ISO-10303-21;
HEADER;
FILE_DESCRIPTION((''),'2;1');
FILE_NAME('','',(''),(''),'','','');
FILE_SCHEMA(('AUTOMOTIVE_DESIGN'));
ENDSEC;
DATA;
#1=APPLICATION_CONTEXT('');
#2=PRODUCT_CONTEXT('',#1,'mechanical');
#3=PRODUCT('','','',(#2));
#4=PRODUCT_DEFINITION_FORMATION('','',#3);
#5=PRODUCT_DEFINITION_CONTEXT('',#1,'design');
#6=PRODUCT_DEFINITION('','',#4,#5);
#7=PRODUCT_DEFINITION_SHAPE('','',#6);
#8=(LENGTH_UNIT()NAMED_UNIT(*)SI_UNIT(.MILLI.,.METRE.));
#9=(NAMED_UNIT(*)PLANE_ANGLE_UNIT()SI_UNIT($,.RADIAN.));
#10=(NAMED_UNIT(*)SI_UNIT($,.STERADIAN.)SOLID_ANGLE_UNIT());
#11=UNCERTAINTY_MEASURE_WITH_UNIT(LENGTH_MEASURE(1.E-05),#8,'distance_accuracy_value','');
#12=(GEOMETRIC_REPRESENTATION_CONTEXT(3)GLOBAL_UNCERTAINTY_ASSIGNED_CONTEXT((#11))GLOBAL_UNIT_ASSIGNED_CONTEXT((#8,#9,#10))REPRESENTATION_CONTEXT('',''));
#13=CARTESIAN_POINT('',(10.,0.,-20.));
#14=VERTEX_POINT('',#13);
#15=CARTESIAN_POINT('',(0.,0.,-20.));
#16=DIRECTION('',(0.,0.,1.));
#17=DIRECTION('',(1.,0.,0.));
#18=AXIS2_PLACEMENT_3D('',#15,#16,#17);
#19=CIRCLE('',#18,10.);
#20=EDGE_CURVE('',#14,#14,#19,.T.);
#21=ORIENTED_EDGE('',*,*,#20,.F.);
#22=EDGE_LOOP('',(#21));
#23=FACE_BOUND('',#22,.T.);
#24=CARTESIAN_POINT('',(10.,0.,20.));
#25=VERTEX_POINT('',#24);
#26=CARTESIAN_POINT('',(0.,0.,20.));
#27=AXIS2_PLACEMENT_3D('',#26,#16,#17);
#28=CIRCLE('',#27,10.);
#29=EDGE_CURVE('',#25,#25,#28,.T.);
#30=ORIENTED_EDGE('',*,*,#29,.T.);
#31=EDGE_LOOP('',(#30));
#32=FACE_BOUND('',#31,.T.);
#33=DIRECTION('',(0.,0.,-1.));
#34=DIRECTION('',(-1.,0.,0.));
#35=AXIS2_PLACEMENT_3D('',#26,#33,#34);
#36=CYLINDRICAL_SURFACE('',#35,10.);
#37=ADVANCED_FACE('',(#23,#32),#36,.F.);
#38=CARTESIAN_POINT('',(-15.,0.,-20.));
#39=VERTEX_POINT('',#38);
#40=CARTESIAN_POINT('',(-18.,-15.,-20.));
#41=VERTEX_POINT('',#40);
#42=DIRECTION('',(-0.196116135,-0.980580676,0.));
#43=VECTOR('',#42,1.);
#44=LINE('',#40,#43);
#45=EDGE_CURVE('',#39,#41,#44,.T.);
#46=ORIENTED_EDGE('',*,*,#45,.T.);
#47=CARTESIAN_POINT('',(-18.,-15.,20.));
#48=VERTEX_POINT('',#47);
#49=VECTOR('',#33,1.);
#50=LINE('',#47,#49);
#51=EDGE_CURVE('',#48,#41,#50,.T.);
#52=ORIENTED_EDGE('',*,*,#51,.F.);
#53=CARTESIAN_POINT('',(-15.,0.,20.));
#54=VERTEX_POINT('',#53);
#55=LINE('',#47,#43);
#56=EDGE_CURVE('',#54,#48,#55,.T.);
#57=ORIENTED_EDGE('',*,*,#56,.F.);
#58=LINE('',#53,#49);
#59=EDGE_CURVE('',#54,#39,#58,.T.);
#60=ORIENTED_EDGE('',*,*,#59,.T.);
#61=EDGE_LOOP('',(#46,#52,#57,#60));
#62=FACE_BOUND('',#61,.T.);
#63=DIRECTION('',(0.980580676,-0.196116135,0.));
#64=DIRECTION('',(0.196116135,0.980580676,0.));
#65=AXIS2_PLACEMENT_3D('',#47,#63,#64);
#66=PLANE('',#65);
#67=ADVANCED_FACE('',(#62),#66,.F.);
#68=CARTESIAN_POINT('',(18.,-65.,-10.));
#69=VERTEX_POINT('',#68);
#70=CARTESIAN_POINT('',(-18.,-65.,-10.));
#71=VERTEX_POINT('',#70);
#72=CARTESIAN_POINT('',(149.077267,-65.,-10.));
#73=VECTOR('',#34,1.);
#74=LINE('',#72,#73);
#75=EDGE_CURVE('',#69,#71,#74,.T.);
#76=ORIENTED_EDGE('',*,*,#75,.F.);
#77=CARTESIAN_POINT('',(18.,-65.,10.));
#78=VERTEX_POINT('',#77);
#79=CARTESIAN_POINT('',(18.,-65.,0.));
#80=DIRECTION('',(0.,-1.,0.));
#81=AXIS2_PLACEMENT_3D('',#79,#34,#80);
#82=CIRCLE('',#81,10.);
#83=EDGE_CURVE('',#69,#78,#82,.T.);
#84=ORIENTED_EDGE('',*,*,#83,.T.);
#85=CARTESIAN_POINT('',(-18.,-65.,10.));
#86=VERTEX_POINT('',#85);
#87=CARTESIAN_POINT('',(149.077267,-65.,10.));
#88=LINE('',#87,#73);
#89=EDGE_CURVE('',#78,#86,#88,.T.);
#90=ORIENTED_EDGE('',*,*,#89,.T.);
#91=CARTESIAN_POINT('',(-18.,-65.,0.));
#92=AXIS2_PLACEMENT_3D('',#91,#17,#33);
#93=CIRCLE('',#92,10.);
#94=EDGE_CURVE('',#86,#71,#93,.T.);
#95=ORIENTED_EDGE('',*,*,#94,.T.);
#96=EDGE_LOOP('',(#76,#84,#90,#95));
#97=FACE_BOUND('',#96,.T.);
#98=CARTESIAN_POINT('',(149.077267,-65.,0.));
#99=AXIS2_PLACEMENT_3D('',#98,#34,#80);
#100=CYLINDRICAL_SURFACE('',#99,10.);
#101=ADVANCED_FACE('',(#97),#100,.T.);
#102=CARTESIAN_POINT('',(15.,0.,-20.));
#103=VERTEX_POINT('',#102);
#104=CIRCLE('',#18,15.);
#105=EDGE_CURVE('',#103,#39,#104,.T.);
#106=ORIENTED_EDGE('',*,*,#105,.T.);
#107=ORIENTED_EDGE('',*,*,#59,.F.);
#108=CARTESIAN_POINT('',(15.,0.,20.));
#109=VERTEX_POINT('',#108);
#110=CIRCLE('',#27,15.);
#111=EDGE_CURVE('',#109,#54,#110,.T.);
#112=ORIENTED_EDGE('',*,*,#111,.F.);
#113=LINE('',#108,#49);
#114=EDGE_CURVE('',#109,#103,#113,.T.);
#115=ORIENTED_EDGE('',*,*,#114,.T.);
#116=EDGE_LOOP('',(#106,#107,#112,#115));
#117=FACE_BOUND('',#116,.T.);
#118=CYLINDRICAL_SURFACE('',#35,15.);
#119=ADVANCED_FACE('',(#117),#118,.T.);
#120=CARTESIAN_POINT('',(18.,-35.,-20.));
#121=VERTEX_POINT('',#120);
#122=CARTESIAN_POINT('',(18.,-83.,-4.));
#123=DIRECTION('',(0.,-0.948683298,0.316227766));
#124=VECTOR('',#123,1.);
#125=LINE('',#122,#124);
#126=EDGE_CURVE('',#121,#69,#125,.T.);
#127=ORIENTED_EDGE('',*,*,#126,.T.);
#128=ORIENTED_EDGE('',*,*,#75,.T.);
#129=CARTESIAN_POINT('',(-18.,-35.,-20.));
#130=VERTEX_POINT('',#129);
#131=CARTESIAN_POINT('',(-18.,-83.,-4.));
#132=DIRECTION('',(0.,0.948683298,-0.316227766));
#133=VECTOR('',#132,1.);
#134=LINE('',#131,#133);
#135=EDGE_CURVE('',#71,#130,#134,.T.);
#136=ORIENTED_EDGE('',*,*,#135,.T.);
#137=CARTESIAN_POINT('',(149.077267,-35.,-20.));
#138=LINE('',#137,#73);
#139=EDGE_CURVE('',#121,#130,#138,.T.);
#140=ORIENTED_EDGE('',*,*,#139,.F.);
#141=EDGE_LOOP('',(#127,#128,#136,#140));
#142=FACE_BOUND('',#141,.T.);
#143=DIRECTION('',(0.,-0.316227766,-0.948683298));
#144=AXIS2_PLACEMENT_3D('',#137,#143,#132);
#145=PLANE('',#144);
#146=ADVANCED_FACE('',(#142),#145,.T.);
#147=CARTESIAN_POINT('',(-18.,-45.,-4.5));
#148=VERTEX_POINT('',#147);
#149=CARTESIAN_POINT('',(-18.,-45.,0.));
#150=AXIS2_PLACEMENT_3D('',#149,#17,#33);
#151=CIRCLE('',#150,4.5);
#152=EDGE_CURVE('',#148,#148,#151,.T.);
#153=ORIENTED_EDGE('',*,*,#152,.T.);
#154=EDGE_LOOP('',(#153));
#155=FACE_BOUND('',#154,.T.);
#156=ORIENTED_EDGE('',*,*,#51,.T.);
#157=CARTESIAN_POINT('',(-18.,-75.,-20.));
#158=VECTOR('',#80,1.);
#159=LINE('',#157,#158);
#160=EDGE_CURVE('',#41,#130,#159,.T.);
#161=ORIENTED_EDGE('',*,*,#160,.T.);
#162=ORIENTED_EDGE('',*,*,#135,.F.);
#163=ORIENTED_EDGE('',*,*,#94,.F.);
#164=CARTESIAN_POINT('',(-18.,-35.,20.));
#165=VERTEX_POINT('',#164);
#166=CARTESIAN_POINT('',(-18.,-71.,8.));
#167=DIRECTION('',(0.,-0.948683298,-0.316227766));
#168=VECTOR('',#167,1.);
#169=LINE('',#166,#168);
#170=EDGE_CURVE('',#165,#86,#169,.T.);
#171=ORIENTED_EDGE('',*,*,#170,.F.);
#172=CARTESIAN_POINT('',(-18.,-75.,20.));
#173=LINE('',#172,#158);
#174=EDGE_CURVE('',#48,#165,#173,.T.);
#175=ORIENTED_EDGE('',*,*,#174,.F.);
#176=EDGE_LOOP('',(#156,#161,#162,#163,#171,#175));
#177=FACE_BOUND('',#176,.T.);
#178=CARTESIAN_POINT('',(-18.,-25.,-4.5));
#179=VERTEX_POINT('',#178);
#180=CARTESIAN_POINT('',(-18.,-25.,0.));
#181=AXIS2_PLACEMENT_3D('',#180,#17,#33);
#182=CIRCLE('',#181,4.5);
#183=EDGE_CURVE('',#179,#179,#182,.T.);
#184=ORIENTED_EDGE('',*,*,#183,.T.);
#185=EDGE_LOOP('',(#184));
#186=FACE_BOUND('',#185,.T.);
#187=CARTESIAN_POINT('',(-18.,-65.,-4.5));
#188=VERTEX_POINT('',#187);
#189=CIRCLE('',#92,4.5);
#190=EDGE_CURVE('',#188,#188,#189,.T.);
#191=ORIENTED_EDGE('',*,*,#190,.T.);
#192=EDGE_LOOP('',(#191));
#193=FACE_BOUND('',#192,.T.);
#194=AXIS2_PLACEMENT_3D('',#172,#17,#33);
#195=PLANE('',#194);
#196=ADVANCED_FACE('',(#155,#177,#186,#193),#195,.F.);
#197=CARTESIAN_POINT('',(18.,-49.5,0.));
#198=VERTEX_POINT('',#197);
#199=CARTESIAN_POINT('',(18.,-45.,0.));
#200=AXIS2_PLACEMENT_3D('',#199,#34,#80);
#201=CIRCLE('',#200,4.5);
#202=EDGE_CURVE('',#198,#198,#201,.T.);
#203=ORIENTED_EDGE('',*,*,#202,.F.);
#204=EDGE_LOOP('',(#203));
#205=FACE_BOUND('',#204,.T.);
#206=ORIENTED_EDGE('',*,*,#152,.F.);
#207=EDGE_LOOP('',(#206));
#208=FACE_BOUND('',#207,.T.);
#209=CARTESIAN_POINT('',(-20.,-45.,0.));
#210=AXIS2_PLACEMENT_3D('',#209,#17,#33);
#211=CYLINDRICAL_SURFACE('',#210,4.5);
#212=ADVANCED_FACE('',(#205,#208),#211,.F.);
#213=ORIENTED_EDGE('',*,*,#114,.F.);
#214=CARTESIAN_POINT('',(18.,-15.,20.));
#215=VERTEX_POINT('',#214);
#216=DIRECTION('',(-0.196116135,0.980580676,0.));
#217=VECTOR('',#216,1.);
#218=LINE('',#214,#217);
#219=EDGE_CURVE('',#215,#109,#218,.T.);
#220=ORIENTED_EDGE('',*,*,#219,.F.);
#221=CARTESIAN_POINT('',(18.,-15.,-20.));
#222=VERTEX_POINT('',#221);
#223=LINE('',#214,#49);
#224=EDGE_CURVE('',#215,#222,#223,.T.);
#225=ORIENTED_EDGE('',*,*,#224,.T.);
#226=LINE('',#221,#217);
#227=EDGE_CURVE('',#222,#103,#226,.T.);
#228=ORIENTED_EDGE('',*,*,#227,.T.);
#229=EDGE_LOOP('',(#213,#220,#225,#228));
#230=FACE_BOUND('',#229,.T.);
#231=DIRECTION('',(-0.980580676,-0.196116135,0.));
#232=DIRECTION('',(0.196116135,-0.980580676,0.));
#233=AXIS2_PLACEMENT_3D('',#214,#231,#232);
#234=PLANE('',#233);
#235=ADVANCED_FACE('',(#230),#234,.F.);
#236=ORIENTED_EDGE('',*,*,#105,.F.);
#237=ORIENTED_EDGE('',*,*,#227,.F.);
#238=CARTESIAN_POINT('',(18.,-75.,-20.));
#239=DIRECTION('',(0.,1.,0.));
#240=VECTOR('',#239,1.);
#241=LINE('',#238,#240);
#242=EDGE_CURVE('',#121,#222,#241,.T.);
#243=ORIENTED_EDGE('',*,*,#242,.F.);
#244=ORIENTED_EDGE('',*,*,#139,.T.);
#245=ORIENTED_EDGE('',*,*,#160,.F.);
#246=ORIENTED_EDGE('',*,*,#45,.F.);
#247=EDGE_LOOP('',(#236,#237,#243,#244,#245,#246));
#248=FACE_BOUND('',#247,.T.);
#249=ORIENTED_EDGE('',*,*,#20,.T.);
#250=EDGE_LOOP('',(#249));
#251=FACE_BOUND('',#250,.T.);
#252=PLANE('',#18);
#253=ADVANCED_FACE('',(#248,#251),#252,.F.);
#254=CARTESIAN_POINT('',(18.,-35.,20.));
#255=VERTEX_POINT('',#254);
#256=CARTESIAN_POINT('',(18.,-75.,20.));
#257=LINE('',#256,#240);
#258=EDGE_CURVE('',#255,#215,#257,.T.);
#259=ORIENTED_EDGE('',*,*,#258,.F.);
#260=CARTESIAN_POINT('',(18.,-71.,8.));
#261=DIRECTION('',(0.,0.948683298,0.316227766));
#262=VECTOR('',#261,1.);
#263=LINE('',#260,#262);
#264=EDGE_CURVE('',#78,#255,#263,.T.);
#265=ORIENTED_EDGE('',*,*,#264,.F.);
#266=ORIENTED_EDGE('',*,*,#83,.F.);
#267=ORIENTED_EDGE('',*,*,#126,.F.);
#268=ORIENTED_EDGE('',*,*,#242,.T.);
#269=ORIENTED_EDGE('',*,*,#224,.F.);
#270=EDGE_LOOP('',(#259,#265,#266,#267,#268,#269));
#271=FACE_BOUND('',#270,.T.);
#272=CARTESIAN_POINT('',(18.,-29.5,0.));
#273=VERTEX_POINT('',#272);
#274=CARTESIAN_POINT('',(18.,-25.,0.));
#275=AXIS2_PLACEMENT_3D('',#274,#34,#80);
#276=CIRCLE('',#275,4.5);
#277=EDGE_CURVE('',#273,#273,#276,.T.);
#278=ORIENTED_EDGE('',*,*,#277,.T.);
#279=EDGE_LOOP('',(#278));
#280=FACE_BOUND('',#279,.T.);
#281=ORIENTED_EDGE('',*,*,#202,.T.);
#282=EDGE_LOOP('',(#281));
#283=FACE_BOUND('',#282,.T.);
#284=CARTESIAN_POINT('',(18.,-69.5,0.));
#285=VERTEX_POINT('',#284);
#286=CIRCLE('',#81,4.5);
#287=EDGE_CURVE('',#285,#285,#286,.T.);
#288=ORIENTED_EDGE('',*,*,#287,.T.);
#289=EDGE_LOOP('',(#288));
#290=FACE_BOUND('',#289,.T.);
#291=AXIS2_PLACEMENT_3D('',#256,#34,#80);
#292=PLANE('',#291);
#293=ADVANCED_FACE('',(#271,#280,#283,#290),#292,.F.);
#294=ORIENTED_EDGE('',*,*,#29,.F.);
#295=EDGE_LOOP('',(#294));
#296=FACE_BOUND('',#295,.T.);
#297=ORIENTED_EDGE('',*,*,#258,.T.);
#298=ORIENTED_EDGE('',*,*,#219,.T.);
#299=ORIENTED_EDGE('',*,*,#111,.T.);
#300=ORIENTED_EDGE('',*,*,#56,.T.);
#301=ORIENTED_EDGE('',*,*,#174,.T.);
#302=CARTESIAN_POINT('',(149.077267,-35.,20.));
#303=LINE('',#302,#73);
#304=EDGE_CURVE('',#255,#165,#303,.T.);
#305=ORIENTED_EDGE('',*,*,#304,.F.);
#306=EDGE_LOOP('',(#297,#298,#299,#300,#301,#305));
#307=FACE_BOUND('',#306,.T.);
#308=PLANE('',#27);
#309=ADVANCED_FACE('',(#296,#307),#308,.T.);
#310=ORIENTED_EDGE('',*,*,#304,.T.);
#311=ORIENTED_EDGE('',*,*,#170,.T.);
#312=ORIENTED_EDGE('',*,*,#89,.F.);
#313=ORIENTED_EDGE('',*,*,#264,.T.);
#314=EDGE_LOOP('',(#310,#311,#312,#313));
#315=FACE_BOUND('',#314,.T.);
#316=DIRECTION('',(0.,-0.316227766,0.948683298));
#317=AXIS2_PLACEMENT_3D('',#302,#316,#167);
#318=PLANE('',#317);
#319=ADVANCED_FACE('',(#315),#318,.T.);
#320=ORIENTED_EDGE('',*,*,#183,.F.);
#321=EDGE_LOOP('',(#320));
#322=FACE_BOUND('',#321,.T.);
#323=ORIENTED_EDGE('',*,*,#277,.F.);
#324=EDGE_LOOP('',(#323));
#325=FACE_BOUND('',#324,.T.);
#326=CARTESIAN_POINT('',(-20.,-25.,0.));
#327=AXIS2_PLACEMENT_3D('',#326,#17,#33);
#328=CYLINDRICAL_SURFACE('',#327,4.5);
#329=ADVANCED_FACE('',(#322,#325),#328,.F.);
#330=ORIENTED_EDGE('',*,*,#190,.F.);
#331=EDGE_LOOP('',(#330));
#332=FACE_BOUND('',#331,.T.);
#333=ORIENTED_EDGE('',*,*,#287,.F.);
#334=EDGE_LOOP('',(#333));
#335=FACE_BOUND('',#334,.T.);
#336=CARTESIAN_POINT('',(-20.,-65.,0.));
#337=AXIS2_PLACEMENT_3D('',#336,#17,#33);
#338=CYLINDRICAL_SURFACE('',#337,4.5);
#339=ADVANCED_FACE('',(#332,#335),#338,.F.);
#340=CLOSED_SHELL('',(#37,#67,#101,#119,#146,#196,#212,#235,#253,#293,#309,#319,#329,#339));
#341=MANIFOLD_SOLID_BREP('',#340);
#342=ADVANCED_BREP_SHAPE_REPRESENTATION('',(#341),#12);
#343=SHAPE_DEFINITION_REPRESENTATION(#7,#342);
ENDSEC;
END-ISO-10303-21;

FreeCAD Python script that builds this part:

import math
import FreeCAD as App
import Part
import Sketcher
from FreeCAD import Vector

doc = App.newDocument("Part")
body = doc.addObject("PartDesign::Body", "Body")

# Sketch on XY plane
sketch1 = body.newObject("Sketcher::SketchObject", "Sketch")
sketch1.AttachmentSupport = (doc.getObject("XY_Plane"), [""])
sketch1.MapMode = "FlatFace"
sketch1.addGeometry([
    Part.LineSegment(Vector(18, -75, 0), Vector(18, -15, 0)),  # 0
    Part.LineSegment(Vector(18, -15, 0), Vector(15, 0, 0)),  # 1
    Part.ArcOfCircle(Part.Circle(Vector(0, 0, 0), Vector(0, 0, 1), 15), math.radians(0), math.radians(180)),  # 2
    Part.LineSegment(Vector(-15, 0, 0), Vector(-18, -15, 0)),  # 3
    Part.LineSegment(Vector(-18, -15, 0), Vector(-18, -75, 0)),  # 4
    Part.LineSegment(Vector(-18, -75, 0), Vector(18, -75, 0)),  # 5
    Part.Circle(Vector(0, 0, 0), Vector(0, 0, 1), 10),  # 6
], False)
sketch1.addConstraint([
    Sketcher.Constraint("Coincident", 0, 2, 1, 1),
    Sketcher.Constraint("Coincident", 1, 2, 2, 1),
    Sketcher.Constraint("Coincident", 2, 2, 3, 1),
    Sketcher.Constraint("Coincident", 3, 2, 4, 1),
    Sketcher.Constraint("Coincident", 4, 2, 5, 1),
    Sketcher.Constraint("Coincident", 5, 2, 0, 1),
    Sketcher.Constraint("Vertical", 0),
    Sketcher.Constraint("Vertical", 4),
    Sketcher.Constraint("Horizontal", 5),
    Sketcher.Constraint("Coincident", 2, 3, -1, 1),
    Sketcher.Constraint("Coincident", 6, 3, -1, 1),
    Sketcher.Constraint("Symmetric", 0, 2, 3, 2, -2),
    Sketcher.Constraint("PointOnObject", 1, 2, -1),
    Sketcher.Constraint("PointOnObject", 2, 2, -1),
    Sketcher.Constraint("Diameter", 6, 20.0),
    Sketcher.Constraint("Radius", 2, 15.0),
    Sketcher.Constraint("DistanceX", 5, 1, 5, 2, 36.0),
    Sketcher.Constraint("DistanceY", 0, 1, 0, 2, 60.0),
    Sketcher.Constraint("DistanceY", 0, 2, -1, 1, 15.0),
])
pad1 = body.newObject("PartDesign::Pad", "Pad")
pad1.Profile = sketch1
pad1.Length = 40
pad1.Midplane = True

# Sketch on YZ plane
sketch2 = body.newObject("Sketcher::SketchObject", "Sketch001")
sketch2.AttachmentSupport = (doc.getObject("YZ_Plane"), [""])
sketch2.MapMode = "FlatFace"
sketch2.addGeometry([
    Part.Circle(Vector(-45, 0, 0), Vector(0, 0, 1), 4.5),
    Part.Circle(Vector(-25, 0, 0), Vector(0, 0, 1), 4.5),
    Part.Circle(Vector(-65, 0, 0), Vector(0, 0, 1), 4.5),
], False)
sketch2.addConstraint([
    Sketcher.Constraint("Equal", 0, 1),
    Sketcher.Constraint("Equal", 1, 2),
    Sketcher.Constraint("PointOnObject", 0, 3, -1),
    Sketcher.Constraint("PointOnObject", 1, 3, -1),
    Sketcher.Constraint("PointOnObject", 2, 3, -1),
    Sketcher.Constraint("Diameter", 0, 9.0),
    Sketcher.Constraint("DistanceX", 0, 3, -1, 1, 45.0),
    Sketcher.Constraint("DistanceX", 1, 3, -1, 1, 25.0),
    Sketcher.Constraint("DistanceX", 2, 3, -1, 1, 65.0),
])
pocket1 = body.newObject("PartDesign::Pocket", "Pocket")
pocket1.Profile = sketch2
pocket1.Length = 40
pocket1.Midplane = True

# Sketch on YZ plane
sketch3 = body.newObject("Sketcher::SketchObject", "Sketch002")
sketch3.AttachmentSupport = (doc.getObject("YZ_Plane"), [""])
sketch3.MapMode = "FlatFace"
sketch3.AttachmentOffset = App.Placement(Vector(0, 0, 18), App.Rotation())
sketch3.addGeometry([
    Part.LineSegment(Vector(-65, 10, 0), Vector(-35, 20, 0)),  # 0
    Part.LineSegment(Vector(-35, 20, 0), Vector(-75, 20, 0)),  # 1
    Part.LineSegment(Vector(-75, 20, 0), Vector(-75, 0, 0)),  # 2
    Part.ArcOfCircle(Part.Circle(Vector(-65, 0, 0), Vector(0, 0, 1), 10), math.radians(90), math.radians(180)),  # 3
    Part.ArcOfCircle(Part.Circle(Vector(-65, 0, 0), Vector(0, 0, 1), 10), math.radians(180), math.radians(270)),  # 4
    Part.LineSegment(Vector(-75, 0, 0), Vector(-75, -20, 0)),  # 5
    Part.LineSegment(Vector(-75, -20, 0), Vector(-35, -20, 0)),  # 6
    Part.LineSegment(Vector(-35, -20, 0), Vector(-65, -10, 0)),  # 7
], False)
sketch3.addConstraint([
    Sketcher.Constraint("Coincident", 0, 2, 1, 1),
    Sketcher.Constraint("Coincident", 1, 2, 2, 1),
    Sketcher.Constraint("Tangent", 2, 2, 3, 2),
    Sketcher.Constraint("Coincident", 3, 1, 0, 1),
    Sketcher.Constraint("Tangent", 4, 1, 5, 1),
    Sketcher.Constraint("Coincident", 5, 2, 6, 1),
    Sketcher.Constraint("Coincident", 6, 2, 7, 1),
    Sketcher.Constraint("Coincident", 7, 2, 4, 2),
    Sketcher.Constraint("Horizontal", 1),
    Sketcher.Constraint("Vertical", 2),
    Sketcher.Constraint("Vertical", 5),
    Sketcher.Constraint("Horizontal", 6),
    Sketcher.Constraint("Coincident", 4, 3, 3, 3),
    Sketcher.Constraint("Equal", 3, 4),
    Sketcher.Constraint("Symmetric", 0, 2, 6, 2, -1),
    Sketcher.Constraint("Symmetric", 3, 1, 7, 2, -1),
    Sketcher.Constraint("Vertical", 4, 3, 3, 1),
    Sketcher.Constraint("Radius", 3, 10.0),
    Sketcher.Constraint("DistanceX", 1, 2, 1, 1, 40.0),
    Sketcher.Constraint("DistanceY", 2, 2, 2, 1, 20.0),
    Sketcher.Constraint("DistanceX", 3, 3, -1, 1, 65.0),
])
pocket2 = body.newObject("PartDesign::Pocket", "Pocket001")
pocket2.Profile = sketch3
pocket2.Type = "ThroughAll"
pocket2.Midplane = True

doc.recompute()
